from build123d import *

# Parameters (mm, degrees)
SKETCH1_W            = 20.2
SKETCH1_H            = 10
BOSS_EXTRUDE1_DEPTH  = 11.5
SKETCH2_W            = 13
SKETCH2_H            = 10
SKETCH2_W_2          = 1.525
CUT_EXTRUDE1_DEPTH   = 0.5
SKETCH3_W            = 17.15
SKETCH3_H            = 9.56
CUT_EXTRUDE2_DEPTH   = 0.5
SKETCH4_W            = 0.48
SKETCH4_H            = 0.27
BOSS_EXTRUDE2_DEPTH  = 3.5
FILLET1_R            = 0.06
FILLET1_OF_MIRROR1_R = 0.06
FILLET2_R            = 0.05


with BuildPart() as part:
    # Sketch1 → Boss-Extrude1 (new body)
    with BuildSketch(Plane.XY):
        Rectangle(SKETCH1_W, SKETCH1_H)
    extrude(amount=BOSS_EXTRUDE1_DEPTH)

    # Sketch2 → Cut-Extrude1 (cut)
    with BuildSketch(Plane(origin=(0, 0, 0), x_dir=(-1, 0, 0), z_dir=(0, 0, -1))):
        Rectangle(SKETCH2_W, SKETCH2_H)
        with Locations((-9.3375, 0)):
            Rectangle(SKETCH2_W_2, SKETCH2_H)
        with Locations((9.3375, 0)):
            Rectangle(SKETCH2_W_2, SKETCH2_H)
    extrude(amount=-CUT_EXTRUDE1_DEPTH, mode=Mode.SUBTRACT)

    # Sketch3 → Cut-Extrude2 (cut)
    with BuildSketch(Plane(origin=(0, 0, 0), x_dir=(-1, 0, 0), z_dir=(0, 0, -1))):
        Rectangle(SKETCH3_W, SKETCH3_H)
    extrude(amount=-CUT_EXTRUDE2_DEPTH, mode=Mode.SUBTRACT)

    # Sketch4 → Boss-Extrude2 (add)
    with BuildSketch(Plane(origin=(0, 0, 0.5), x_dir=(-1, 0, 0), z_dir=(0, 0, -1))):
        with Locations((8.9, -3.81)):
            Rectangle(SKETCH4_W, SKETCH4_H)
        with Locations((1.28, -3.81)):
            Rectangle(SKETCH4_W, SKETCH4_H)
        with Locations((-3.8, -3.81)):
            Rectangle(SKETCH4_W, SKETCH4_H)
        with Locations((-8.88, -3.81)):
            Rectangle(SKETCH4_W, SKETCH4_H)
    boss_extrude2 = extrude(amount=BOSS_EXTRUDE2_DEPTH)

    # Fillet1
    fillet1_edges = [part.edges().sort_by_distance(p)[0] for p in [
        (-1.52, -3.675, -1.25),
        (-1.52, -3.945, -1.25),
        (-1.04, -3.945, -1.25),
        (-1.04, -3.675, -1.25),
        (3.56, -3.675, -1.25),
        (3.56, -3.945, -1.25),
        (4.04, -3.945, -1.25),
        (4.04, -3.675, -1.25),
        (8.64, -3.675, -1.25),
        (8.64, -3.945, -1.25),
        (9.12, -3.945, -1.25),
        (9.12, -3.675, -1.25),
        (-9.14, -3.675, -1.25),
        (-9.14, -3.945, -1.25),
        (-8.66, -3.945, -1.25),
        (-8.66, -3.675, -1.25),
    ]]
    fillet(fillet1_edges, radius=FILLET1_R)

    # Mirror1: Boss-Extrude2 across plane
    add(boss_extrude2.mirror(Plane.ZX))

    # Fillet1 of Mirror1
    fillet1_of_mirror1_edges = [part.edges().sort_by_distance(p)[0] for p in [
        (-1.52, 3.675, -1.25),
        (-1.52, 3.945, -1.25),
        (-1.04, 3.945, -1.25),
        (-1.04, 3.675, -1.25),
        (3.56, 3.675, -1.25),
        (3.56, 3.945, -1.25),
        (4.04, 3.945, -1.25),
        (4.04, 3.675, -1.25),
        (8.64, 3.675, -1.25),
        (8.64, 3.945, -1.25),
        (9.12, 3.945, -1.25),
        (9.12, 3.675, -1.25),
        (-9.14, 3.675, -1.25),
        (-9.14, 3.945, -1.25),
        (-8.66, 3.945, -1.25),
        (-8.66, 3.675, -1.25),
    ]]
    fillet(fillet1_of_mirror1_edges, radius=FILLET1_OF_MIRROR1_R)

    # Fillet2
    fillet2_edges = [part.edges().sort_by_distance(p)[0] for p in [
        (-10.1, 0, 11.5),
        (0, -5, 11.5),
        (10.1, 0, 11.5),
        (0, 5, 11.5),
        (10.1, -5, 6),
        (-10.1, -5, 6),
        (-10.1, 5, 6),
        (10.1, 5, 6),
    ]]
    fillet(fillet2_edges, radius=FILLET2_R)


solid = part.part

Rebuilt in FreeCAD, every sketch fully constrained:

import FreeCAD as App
import Part
import Sketcher

V = App.Vector


def edges_at(feature, points):
    """Names of the edges that pass closest to the given points."""
    edges = feature.Shape.Edges
    near = lambda p: min(range(len(edges)), key=lambda i: edges[i].distToShape(Part.Vertex(*p))[0])
    return sorted({f"Edge{near(p) + 1}" for p in points})

doc = App.newDocument("Part")
body = doc.addObject("PartDesign::Body", "Body")

sketch1 = body.newObject("Sketcher::SketchObject", "Sketch")
sketch1.AttachmentSupport = (doc.getObject("XY_Plane"), [""])
sketch1.MapMode = "FlatFace"
sketch1.addGeometry(Part.LineSegment(V(-10, 5, 0), V(-10, -5, 0)), False)
sketch1.addGeometry(Part.LineSegment(V(-10, -5, 0), V(10, -5, 0)), False)
sketch1.addGeometry(Part.LineSegment(V(10, -5, 0), V(10, 5, 0)), False)
sketch1.addGeometry(Part.LineSegment(V(10, 5, 0), V(-10, 5, 0)), False)
sketch1.addConstraint(Sketcher.Constraint("Coincident", 0, 2, 1, 1))
sketch1.addConstraint(Sketcher.Constraint("Coincident", 1, 2, 2, 1))
sketch1.addConstraint(Sketcher.Constraint("Coincident", 2, 2, 3, 1))
sketch1.addConstraint(Sketcher.Constraint("Coincident", 3, 2, 0, 1))
sketch1.addConstraint(Sketcher.Constraint("Vertical", 0))
sketch1.addConstraint(Sketcher.Constraint("Horizontal", 1))
sketch1.addConstraint(Sketcher.Constraint("Vertical", 2))
sketch1.addConstraint(Sketcher.Constraint("Horizontal", 3))
sketch1.addConstraint(Sketcher.Constraint("Symmetric", 0, 2, 2, 2, -1, 1))
sketch1.addConstraint(Sketcher.Constraint("DistanceY", 0, 2, 0, 1, 10.0))
sketch1.addConstraint(Sketcher.Constraint("DistanceX", 1, 1, 1, 2, 20.2))
pad1 = body.newObject("PartDesign::Pad", "Pad")
pad1.Profile = sketch1
pad1.Length = 11.5

sketch2 = body.newObject("Sketcher::SketchObject", "Sketch001")
sketch2.AttachmentSupport = (doc.getObject("XY_Plane"), [""])
sketch2.MapMode = "FlatFace"
sketch2.addGeometry(Part.LineSegment(V(6.5, 5, 0), V(6.5, -5, 0)), False)
sketch2.addGeometry(Part.LineSegment(V(6.5, -5, 0), V(-6.5, -5, 0)), False)
sketch2.addGeometry(Part.LineSegment(V(-6.5, -5, 0), V(-6.5, 5, 0)), False)
sketch2.addGeometry(Part.LineSegment(V(-6.5, 5, 0), V(6.5, 5, 0)), False)
sketch2.addGeometry(Part.LineSegment(V(10.1, 5, 0), V(10.1, -5, 0)), False)
sketch2.addGeometry(Part.LineSegment(V(10.1, -5, 0), V(8.6, -5, 0)), False)
sketch2.addGeometry(Part.LineSegment(V(8.6, -5, 0), V(8.6, 5, 0)), False)
sketch2.addGeometry(Part.LineSegment(V(8.6, 5, 0), V(10.1, 5, 0)), False)
sketch2.addGeometry(Part.LineSegment(V(-8.6, 5, 0), V(-8.6, -5, 0)), False)
sketch2.addGeometry(Part.LineSegment(V(-8.6, -5, 0), V(-10.1, -5, 0)), False)
sketch2.addGeometry(Part.LineSegment(V(-10.1, -5, 0), V(-10.1, 5, 0)), False)
sketch2.addGeometry(Part.LineSegment(V(-10.1, 5, 0), V(-8.6, 5, 0)), False)
sketch2.addConstraint(Sketcher.Constraint("Coincident", 0, 2, 1, 1))
sketch2.addConstraint(Sketcher.Constraint("Coincident", 1, 2, 2, 1))
sketch2.addConstraint(Sketcher.Constraint("Coincident", 2, 2, 3, 1))
sketch2.addConstraint(Sketcher.Constraint("Coincident", 3, 2, 0, 1))
sketch2.addConstraint(Sketcher.Constraint("Coincident", 4, 2, 5, 1))
sketch2.addConstraint(Sketcher.Constraint("Coincident", 5, 2, 6, 1))
sketch2.addConstraint(Sketcher.Constraint("Coincident", 6, 2, 7, 1))
sketch2.addConstraint(Sketcher.Constraint("Coincident", 7, 2, 4, 1))
sketch2.addConstraint(Sketcher.Constraint("Coincident", 8, 2, 9, 1))
sketch2.addConstraint(Sketcher.Constraint("Coincident", 9, 2, 10, 1))
sketch2.addConstraint(Sketcher.Constraint("Coincident", 10, 2, 11, 1))
sketch2.addConstraint(Sketcher.Constraint("Coincident", 11, 2, 8, 1))
sketch2.addConstraint(Sketcher.Constraint("Vertical", 0))
sketch2.addConstraint(Sketcher.Constraint("Horizontal", 1))
sketch2.addConstraint(Sketcher.Constraint("Vertical", 2))
sketch2.addConstraint(Sketcher.Constraint("Horizontal", 3))
sketch2.addConstraint(Sketcher.Constraint("Vertical", 4))
sketch2.addConstraint(Sketcher.Constraint("Horizontal", 5))
sketch2.addConstraint(Sketcher.Constraint("Vertical", 6))
sketch2.addConstraint(Sketcher.Constraint("Horizontal", 7))
sketch2.addConstraint(Sketcher.Constraint("Vertical", 8))
sketch2.addConstraint(Sketcher.Constraint("Horizontal", 9))
sketch2.addConstraint(Sketcher.Constraint("Vertical", 10))
sketch2.addConstraint(Sketcher.Constraint("Horizontal", 11))
sketch2.addConstraint(Sketcher.Constraint("Symmetric", 0, 2, 2, 2, -1, 1))
sketch2.addConstraint(Sketcher.Constraint("Symmetric", 6, 2, 8, 2, -1, 1))
sketch2.addConstraint(Sketcher.Constraint("Symmetric", 4, 2, 10, 2, -1, 1))
sketch2.addConstraint(Sketcher.Constraint("Horizontal", 1, 2, 4, 2))
sketch2.addConstraint(Sketcher.Constraint("Horizontal", 3, 2, 6, 2))
sketch2.addConstraint(Sketcher.Constraint("DistanceX", 1, 2, 1, 1, 13.0))
sketch2.addConstraint(Sketcher.Constraint("DistanceY", 0, 2, 0, 1, 10.0))
sketch2.addConstraint(Sketcher.Constraint("DistanceX", -1, 1, 4, 2, 10.1))
sketch2.addConstraint(Sketcher.Constraint("DistanceX", 5, 2, 5, 1, 1.525))
pocket1 = body.newObject("PartDesign::Pocket", "Pocket")
pocket1.Profile = sketch2
pocket1.Length = 0.5
pocket1.Reversed = True

sketch3 = body.newObject("Sketcher::SketchObject", "Sketch002")
sketch3.AttachmentSupport = (doc.getObject("XY_Plane"), [""])
sketch3.MapMode = "FlatFace"
sketch3.addGeometry(Part.LineSegment(V(9, 5, 0), V(9, -5, 0)), False)
sketch3.addGeometry(Part.LineSegment(V(9, -5, 0), V(-9, -5, 0)), False)
sketch3.addGeometry(Part.LineSegment(V(-9, -5, 0), V(-9, 5, 0)), False)
sketch3.addGeometry(Part.LineSegment(V(-9, 5, 0), V(9, 5, 0)), False)
sketch3.addConstraint(Sketcher.Constraint("Coincident", 0, 2, 1, 1))
sketch3.addConstraint(Sketcher.Constraint("Coincident", 1, 2, 2, 1))
sketch3.addConstraint(Sketcher.Constraint("Coincident", 2, 2, 3, 1))
sketch3.addConstraint(Sketcher.Constraint("Coincident", 3, 2, 0, 1))
sketch3.addConstraint(Sketcher.Constraint("Vertical", 0))
sketch3.addConstraint(Sketcher.Constraint("Horizontal", 1))
sketch3.addConstraint(Sketcher.Constraint("Vertical", 2))
sketch3.addConstraint(Sketcher.Constraint("Horizontal", 3))
sketch3.addConstraint(Sketcher.Constraint("Symmetric", 0, 2, 2, 2, -1, 1))
sketch3.addConstraint(Sketcher.Constraint("DistanceX", 1, 2, 1, 1, 17.15))
sketch3.addConstraint(Sketcher.Constraint("DistanceY", 0, 2, 0, 1, 9.56))
pocket2 = body.newObject("PartDesign::Pocket", "Pocket001")
pocket2.Profile = sketch3
pocket2.Length = 0.5
pocket2.Reversed = True

sketch4 = body.newObject("Sketcher::SketchObject", "Sketch003")
sketch4.AttachmentSupport = (doc.getObject("XY_Plane"), [""])
sketch4.MapMode = "FlatFace"
sketch4.AttachmentOffset = App.Placement(V(0, 0, 0.5), App.Rotation())
sketch4.addGeometry(Part.LineSegment(V(-8.66, -3.67, 0), V(-8.66, -3.94, 0)), False)
sketch4.addGeometry(Part.LineSegment(V(-8.66, -3.94, 0), V(-9.14, -3.94, 0)), False)
sketch4.addGeometry(Part.LineSegment(V(-9.14, -3.94, 0), V(-9.14, -3.67, 0)), False)
sketch4.addGeometry(Part.LineSegment(V(-9.14, -3.67, 0), V(-8.66, -3.67, 0)), False)
sketch4.addGeometry(Part.LineSegment(V(-1.04, -3.67, 0), V(-1.04, -3.94, 0)), False)
sketch4.addGeometry(Part.LineSegment(V(-1.04, -3.94, 0), V(-1.52, -3.94, 0)), False)
sketch4.addGeometry(Part.LineSegment(V(-1.52, -3.94, 0), V(-1.52, -3.67, 0)), False)
sketch4.addGeometry(Part.LineSegment(V(-1.52, -3.67, 0), V(-1.04, -3.67, 0)), False)
sketch4.addGeometry(Part.LineSegment(V(4.04, -3.67, 0), V(4.04, -3.94, 0)), False)
sketch4.addGeometry(Part.LineSegment(V(4.04, -3.94, 0), V(3.56, -3.94, 0)), False)
sketch4.addGeometry(Part.LineSegment(V(3.56, -3.94, 0), V(3.56, -3.67, 0)), False)
sketch4.addGeometry(Part.LineSegment(V(3.56, -3.67, 0), V(4.04, -3.67, 0)), False)
sketch4.addGeometry(Part.LineSegment(V(9.12, -3.67, 0), V(9.12, -3.94, 0)), False)
sketch4.addGeometry(Part.LineSegment(V(9.12, -3.94, 0), V(8.64, -3.94, 0)), False)
sketch4.addGeometry(Part.LineSegment(V(8.64, -3.94, 0), V(8.64, -3.67, 0)), False)
sketch4.addGeometry(Part.LineSegment(V(8.64, -3.67, 0), V(9.12, -3.67, 0)), False)
sketch4.addConstraint(Sketcher.Constraint("Coincident", 0, 2, 1, 1))
sketch4.addConstraint(Sketcher.Constraint("Coincident", 1, 2, 2, 1))
sketch4.addConstraint(Sketcher.Constraint("Coincident", 2, 2, 3, 1))
sketch4.addConstraint(Sketcher.Constraint("Coincident", 3, 2, 0, 1))
sketch4.addConstraint(Sketcher.Constraint("Coincident", 4, 2, 5, 1))
sketch4.addConstraint(Sketcher.Constraint("Coincident", 5, 2, 6, 1))
sketch4.addConstraint(Sketcher.Constraint("Coincident", 6, 2, 7, 1))
sketch4.addConstraint(Sketcher.Constraint("Coincident", 7, 2, 4, 1))
sketch4.addConstraint(Sketcher.Constraint("Coincident", 8, 2, 9, 1))
sketch4.addConstraint(Sketcher.Constraint("Coincident", 9, 2, 10, 1))
sketch4.addConstraint(Sketcher.Constraint("Coincident", 10, 2, 11, 1))
sketch4.addConstraint(Sketcher.Constraint("Coincident", 11, 2, 8, 1))
sketch4.addConstraint(Sketcher.Constraint("Coincident", 12, 2, 13, 1))
sketch4.addConstraint(Sketcher.Constraint("Coincident", 13, 2, 14, 1))
sketch4.addConstraint(Sketcher.Constraint("Coincident", 14, 2, 15, 1))
sketch4.addConstraint(Sketcher.Constraint("Coincident", 15, 2, 12, 1))
sketch4.addConstraint(Sketcher.Constraint("Vertical", 0))
sketch4.addConstraint(Sketcher.Constraint("Horizontal", 1))
sketch4.addConstraint(Sketcher.Constraint("Vertical", 2))
sketch4.addConstraint(Sketcher.Constraint("Horizontal", 3))
sketch4.addConstraint(Sketcher.Constraint("Vertical", 4))
sketch4.addConstraint(Sketcher.Constraint("Horizontal", 5))
sketch4.addConstraint(Sketcher.Constraint("Vertical", 6))
sketch4.addConstraint(Sketcher.Constraint("Horizontal", 7))
sketch4.addConstraint(Sketcher.Constraint("Vertical", 8))
sketch4.addConstraint(Sketcher.Constraint("Horizontal", 9))
sketch4.addConstraint(Sketcher.Constraint("Vertical", 10))
sketch4.addConstraint(Sketcher.Constraint("Horizontal", 11))
sketch4.addConstraint(Sketcher.Constraint("Vertical", 12))
sketch4.addConstraint(Sketcher.Constraint("Horizontal", 13))
sketch4.addConstraint(Sketcher.Constraint("Vertical", 14))
sketch4.addConstraint(Sketcher.Constraint("Horizontal", 15))
sketch4.addConstraint(Sketcher.Constraint("Horizontal", 1, 2, 4, 2))
sketch4.addConstraint(Sketcher.Constraint("Horizontal", 3, 2, 6, 2))
sketch4.addConstraint(Sketcher.Constraint("Horizontal", 5, 2, 8, 2))
sketch4.addConstraint(Sketcher.Constraint("Horizontal", 7, 2, 10, 2))
sketch4.addConstraint(Sketcher.Constraint("Horizontal", 9, 2, 12, 2))
sketch4.addConstraint(Sketcher.Constraint("Horizontal", 11, 2, 14, 2))
sketch4.addConstraint(Sketcher.Constraint("Equal", 3, 5))
sketch4.addConstraint(Sketcher.Constraint("Equal", 7, 9))
sketch4.addConstraint(Sketcher.Constraint("Equal", 11, 13))
sketch4.addConstraint(Sketcher.Constraint("DistanceX", 1, 2, 1, 1, 0.48))
sketch4.addConstraint(Sketcher.Constraint("DistanceY", 0, 2, 0, 1, 0.27))
sketch4.addConstraint(Sketcher.Constraint("DistanceX", 1, 2, 4, 2, 8.1))
sketch4.addConstraint(Sketcher.Constraint("DistanceX", 0, 2, 8, 2, 12.7))
sketch4.addConstraint(Sketcher.Constraint("DistanceX", 8, 2, 13, 2, 4.6))
sketch4.addConstraint(Sketcher.Constraint("DistanceX", 0, 2, -1, 1, 8.66))
sketch4.addConstraint(Sketcher.Constraint("DistanceY", 0, 2, -1, 1, 3.945))
pad2 = body.newObject("PartDesign::Pad", "Pad001")
pad2.Profile = sketch4
pad2.Length = 3.5
pad2.Reversed = True
doc.recompute()

fillet = body.newObject("PartDesign::Fillet", "Fillet")
fillet.Base = (pad2, edges_at(pad2, [
    (-1.52, -3.675, -1.25),
    (-1.52, -3.945, -1.25),
    (-1.04, -3.945, -1.25),
    (-1.04, -3.675, -1.25),
    (3.56, -3.675, -1.25),
    (3.56, -3.945, -1.25),
    (4.04, -3.945, -1.25),
    (4.04, -3.675, -1.25),
    (8.64, -3.675, -1.25),
    (8.64, -3.945, -1.25),
    (9.12, -3.945, -1.25),
    (9.12, -3.675, -1.25),
    (-9.14, -3.675, -1.25),
    (-9.14, -3.945, -1.25),
    (-8.66, -3.945, -1.25),
    (-8.66, -3.675, -1.25),
]))
fillet.Radius = 0.06
doc.recompute()

mirrored = body.newObject("PartDesign::Mirrored", "Mirrored")
mirrored.Originals = [pad2]
mirrored.MirrorPlane = (doc.getObject("XZ_Plane"), [""])
body.Tip = mirrored
doc.recompute()

fillet2 = body.newObject("PartDesign::Fillet", "Fillet001")
fillet2.Base = (mirrored, edges_at(mirrored, [
    (-1.52, 3.675, -1.25),
    (-1.52, 3.945, -1.25),
    (-1.04, 3.945, -1.25),
    (-1.04, 3.675, -1.25),
    (3.56, 3.675, -1.25),
    (3.56, 3.945, -1.25),
    (4.04, 3.945, -1.25),
    (4.04, 3.675, -1.25),
    (8.64, 3.675, -1.25),
    (8.64, 3.945, -1.25),
    (9.12, 3.945, -1.25),
    (9.12, 3.675, -1.25),
    (-9.14, 3.675, -1.25),
    (-9.14, 3.945, -1.25),
    (-8.66, 3.945, -1.25),
    (-8.66, 3.675, -1.25),
]))
fillet2.Radius = 0.06
doc.recompute()

fillet3 = body.newObject("PartDesign::Fillet", "Fillet002")
fillet3.Base = (fillet2, edges_at(fillet2, [
    (-10.1, 0, 11.5),
    (0, -5, 11.5),
    (10.1, 0, 11.5),
    (0, 5, 11.5),
    (10.1, -5, 6),
    (-10.1, -5, 6),
    (-10.1, 5, 6),
    (10.1, 5, 6),
]))
fillet3.Radius = 0.05

doc.recompute()
